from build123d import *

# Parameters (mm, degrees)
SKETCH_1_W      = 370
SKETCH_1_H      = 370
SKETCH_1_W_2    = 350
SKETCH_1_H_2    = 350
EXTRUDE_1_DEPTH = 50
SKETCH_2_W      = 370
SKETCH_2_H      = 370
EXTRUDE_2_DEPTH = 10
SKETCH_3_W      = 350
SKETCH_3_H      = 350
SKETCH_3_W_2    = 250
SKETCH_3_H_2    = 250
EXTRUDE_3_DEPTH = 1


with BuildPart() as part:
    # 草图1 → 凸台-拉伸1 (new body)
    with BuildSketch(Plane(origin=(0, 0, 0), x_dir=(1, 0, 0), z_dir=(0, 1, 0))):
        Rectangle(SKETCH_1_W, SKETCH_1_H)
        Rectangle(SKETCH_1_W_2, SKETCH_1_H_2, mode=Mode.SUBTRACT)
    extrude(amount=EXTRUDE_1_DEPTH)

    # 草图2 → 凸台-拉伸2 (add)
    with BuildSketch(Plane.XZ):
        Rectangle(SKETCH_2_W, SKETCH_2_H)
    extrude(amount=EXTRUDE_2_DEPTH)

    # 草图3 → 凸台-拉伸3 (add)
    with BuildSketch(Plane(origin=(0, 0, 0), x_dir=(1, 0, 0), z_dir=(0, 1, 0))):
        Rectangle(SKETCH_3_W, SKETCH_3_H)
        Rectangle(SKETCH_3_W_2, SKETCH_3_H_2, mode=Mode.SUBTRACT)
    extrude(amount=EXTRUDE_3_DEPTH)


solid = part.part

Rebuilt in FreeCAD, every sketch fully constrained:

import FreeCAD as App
import Part
import Sketcher

doc = App.newDocument("Part")
body = doc.addObject("PartDesign::Body", "Body")

sketch1 = body.newObject("Sketcher::SketchObject", "Sketch")
sketch1.AttachmentSupport = (doc.getObject("XZ_Plane"), [""])
sketch1.MapMode = "FlatFace"
sketch1.addGeometry(Part.LineSegment(App.Vector(-185, -185, 0), App.Vector(-185, 185, 0)), False)
sketch1.addGeometry(Part.LineSegment(App.Vector(-185, 185, 0), App.Vector(185, 185, 0)), False)
sketch1.addGeometry(Part.LineSegment(App.Vector(185, 185, 0), App.Vector(185, -185, 0)), False)
sketch1.addGeometry(Part.LineSegment(App.Vector(185, -185, 0), App.Vector(-185, -185, 0)), False)
sketch1.addGeometry(Part.LineSegment(App.Vector(175, 175, 0), App.Vector(-175, 175, 0)), False)
sketch1.addGeometry(Part.LineSegment(App.Vector(-175, 175, 0), App.Vector(-175, -175, 0)), False)
sketch1.addGeometry(Part.LineSegment(App.Vector(-175, -175, 0), App.Vector(175, -175, 0)), False)
sketch1.addGeometry(Part.LineSegment(App.Vector(175, -175, 0), App.Vector(175, 175, 0)), False)
sketch1.addConstraint(Sketcher.Constraint("Coincident", 0, 2, 1, 1))
sketch1.addConstraint(Sketcher.Constraint("Coincident", 1, 2, 2, 1))
sketch1.addConstraint(Sketcher.Constraint("Coincident", 2, 2, 3, 1))
sketch1.addConstraint(Sketcher.Constraint("Coincident", 3, 2, 0, 1))
sketch1.addConstraint(Sketcher.Constraint("Coincident", 4, 2, 5, 1))
sketch1.addConstraint(Sketcher.Constraint("Coincident", 5, 2, 6, 1))
sketch1.addConstraint(Sketcher.Constraint("Coincident", 6, 2, 7, 1))
sketch1.addConstraint(Sketcher.Constraint("Coincident", 7, 2, 4, 1))
sketch1.addConstraint(Sketcher.Constraint("Vertical", 0))
sketch1.addConstraint(Sketcher.Constraint("Horizontal", 1))
sketch1.addConstraint(Sketcher.Constraint("Vertical", 2))
sketch1.addConstraint(Sketcher.Constraint("Horizontal", 3))
sketch1.addConstraint(Sketcher.Constraint("Horizontal", 4))
sketch1.addConstraint(Sketcher.Constraint("Vertical", 5))
sketch1.addConstraint(Sketcher.Constraint("Horizontal", 6))
sketch1.addConstraint(Sketcher.Constraint("Vertical", 7))
sketch1.addConstraint(Sketcher.Constraint("Symmetric", 0, 2, 2, 2, -1, 1))
sketch1.addConstraint(Sketcher.Constraint("Symmetric", 4, 2, 6, 2, -1, 1))
sketch1.addConstraint(Sketcher.Constraint("Equal", 3, 0))
sketch1.addConstraint(Sketcher.Constraint("Equal", 6, 5))
sketch1.addConstraint(Sketcher.Constraint("DistanceX", 1, 1, 1, 2, 370.0))
sketch1.addConstraint(Sketcher.Constraint("DistanceX", 4, 2, 4, 1, 350.0))
pad1 = body.newObject("PartDesign::Pad", "Pad")
pad1.Profile = sketch1
pad1.Length = 50
pad1.Reversed = True

sketch2 = body.newObject("Sketcher::SketchObject", "Sketch001")
sketch2.AttachmentSupport = (doc.getObject("XZ_Plane"), [""])
sketch2.MapMode = "FlatFace"
sketch2.addGeometry(Part.LineSegment(App.Vector(-185, 185, 0), App.Vector(-185, -185, 0)), False)
sketch2.addGeometry(Part.LineSegment(App.Vector(-185, -185, 0), App.Vector(185, -185, 0)), False)
sketch2.addGeometry(Part.LineSegment(App.Vector(185, -185, 0), App.Vector(185, 185, 0)), False)
sketch2.addGeometry(Part.LineSegment(App.Vector(185, 185, 0), App.Vector(-185, 185, 0)), False)
sketch2.addConstraint(Sketcher.Constraint("Coincident", 0, 2, 1, 1))
sketch2.addConstraint(Sketcher.Constraint("Coincident", 1, 2, 2, 1))
sketch2.addConstraint(Sketcher.Constraint("Coincident", 2, 2, 3, 1))
sketch2.addConstraint(Sketcher.Constraint("Coincident", 3, 2, 0, 1))
sketch2.addConstraint(Sketcher.Constraint("Vertical", 0))
sketch2.addConstraint(Sketcher.Constraint("Horizontal", 1))
sketch2.addConstraint(Sketcher.Constraint("Vertical", 2))
sketch2.addConstraint(Sketcher.Constraint("Horizontal", 3))
sketch2.addConstraint(Sketcher.Constraint("Symmetric", 0, 2, 2, 2, -1, 1))
sketch2.addConstraint(Sketcher.Constraint("Equal", 3, 0))
sketch2.addConstraint(Sketcher.Constraint("DistanceX", 1, 1, 1, 2, 370.0))
pad2 = body.newObject("PartDesign::Pad", "Pad001")
pad2.Profile = sketch2
pad2.Length = 10

sketch3 = body.newObject("Sketcher::SketchObject", "Sketch002")
sketch3.AttachmentSupport = (doc.getObject("XZ_Plane"), [""])
sketch3.MapMode = "FlatFace"
sketch3.addGeometry(Part.LineSegment(App.Vector(-175, -175, 0), App.Vector(-175, 175, 0)), False)
sketch3.addGeometry(Part.LineSegment(App.Vector(-175, 175, 0), App.Vector(175, 175, 0)), False)
sketch3.addGeometry(Part.LineSegment(App.Vector(175, 175, 0), App.Vector(175, -175, 0)), False)
sketch3.addGeometry(Part.LineSegment(App.Vector(175, -175, 0), App.Vector(-175, -175, 0)), False)
sketch3.addGeometry(Part.LineSegment(App.Vector(125, 125, 0), App.Vector(-125, 125, 0)), False)
sketch3.addGeometry(Part.LineSegment(App.Vector(-125, 125, 0), App.Vector(-125, -125, 0)), False)
sketch3.addGeometry(Part.LineSegment(App.Vector(-125, -125, 0), App.Vector(125, -125, 0)), False)
sketch3.addGeometry(Part.LineSegment(App.Vector(125, -125, 0), App.Vector(125, 125, 0)), False)
sketch3.addConstraint(Sketcher.Constraint("Coincident", 0, 2, 1, 1))
sketch3.addConstraint(Sketcher.Constraint("Coincident", 1, 2, 2, 1))
sketch3.addConstraint(Sketcher.Constraint("Coincident", 2, 2, 3, 1))
sketch3.addConstraint(Sketcher.Constraint("Coincident", 3, 2, 0, 1))
sketch3.addConstraint(Sketcher.Constraint("Coincident", 4, 2, 5, 1))
sketch3.addConstraint(Sketcher.Constraint("Coincident", 5, 2, 6, 1))
sketch3.addConstraint(Sketcher.Constraint("Coincident", 6, 2, 7, 1))
sketch3.addConstraint(Sketcher.Constraint("Coincident", 7, 2, 4, 1))
sketch3.addConstraint(Sketcher.Constraint("Vertical", 0))
sketch3.addConstraint(Sketcher.Constraint("Horizontal", 1))
sketch3.addConstraint(Sketcher.Constraint("Vertical", 2))
sketch3.addConstraint(Sketcher.Constraint("Horizontal", 3))
sketch3.addConstraint(Sketcher.Constraint("Horizontal", 4))
sketch3.addConstraint(Sketcher.Constraint("Vertical", 5))
sketch3.addConstraint(Sketcher.Constraint("Horizontal", 6))
sketch3.addConstraint(Sketcher.Constraint("Vertical", 7))
sketch3.addConstraint(Sketcher.Constraint("Symmetric", 0, 2, 2, 2, -1, 1))
sketch3.addConstraint(Sketcher.Constraint("Symmetric", 4, 2, 6, 2, -1, 1))
sketch3.addConstraint(Sketcher.Constraint("Equal", 3, 0))
sketch3.addConstraint(Sketcher.Constraint("Equal", 6, 5))
sketch3.addConstraint(Sketcher.Constraint("DistanceX", 1, 1, 1, 2, 350.0))
sketch3.addConstraint(Sketcher.Constraint("DistanceX", 4, 2, 4, 1, 250.0))
pad3 = body.newObject("PartDesign::Pad", "Pad002")
pad3.Profile = sketch3
pad3.Length = 1
pad3.Reversed = True

doc.recompute()
